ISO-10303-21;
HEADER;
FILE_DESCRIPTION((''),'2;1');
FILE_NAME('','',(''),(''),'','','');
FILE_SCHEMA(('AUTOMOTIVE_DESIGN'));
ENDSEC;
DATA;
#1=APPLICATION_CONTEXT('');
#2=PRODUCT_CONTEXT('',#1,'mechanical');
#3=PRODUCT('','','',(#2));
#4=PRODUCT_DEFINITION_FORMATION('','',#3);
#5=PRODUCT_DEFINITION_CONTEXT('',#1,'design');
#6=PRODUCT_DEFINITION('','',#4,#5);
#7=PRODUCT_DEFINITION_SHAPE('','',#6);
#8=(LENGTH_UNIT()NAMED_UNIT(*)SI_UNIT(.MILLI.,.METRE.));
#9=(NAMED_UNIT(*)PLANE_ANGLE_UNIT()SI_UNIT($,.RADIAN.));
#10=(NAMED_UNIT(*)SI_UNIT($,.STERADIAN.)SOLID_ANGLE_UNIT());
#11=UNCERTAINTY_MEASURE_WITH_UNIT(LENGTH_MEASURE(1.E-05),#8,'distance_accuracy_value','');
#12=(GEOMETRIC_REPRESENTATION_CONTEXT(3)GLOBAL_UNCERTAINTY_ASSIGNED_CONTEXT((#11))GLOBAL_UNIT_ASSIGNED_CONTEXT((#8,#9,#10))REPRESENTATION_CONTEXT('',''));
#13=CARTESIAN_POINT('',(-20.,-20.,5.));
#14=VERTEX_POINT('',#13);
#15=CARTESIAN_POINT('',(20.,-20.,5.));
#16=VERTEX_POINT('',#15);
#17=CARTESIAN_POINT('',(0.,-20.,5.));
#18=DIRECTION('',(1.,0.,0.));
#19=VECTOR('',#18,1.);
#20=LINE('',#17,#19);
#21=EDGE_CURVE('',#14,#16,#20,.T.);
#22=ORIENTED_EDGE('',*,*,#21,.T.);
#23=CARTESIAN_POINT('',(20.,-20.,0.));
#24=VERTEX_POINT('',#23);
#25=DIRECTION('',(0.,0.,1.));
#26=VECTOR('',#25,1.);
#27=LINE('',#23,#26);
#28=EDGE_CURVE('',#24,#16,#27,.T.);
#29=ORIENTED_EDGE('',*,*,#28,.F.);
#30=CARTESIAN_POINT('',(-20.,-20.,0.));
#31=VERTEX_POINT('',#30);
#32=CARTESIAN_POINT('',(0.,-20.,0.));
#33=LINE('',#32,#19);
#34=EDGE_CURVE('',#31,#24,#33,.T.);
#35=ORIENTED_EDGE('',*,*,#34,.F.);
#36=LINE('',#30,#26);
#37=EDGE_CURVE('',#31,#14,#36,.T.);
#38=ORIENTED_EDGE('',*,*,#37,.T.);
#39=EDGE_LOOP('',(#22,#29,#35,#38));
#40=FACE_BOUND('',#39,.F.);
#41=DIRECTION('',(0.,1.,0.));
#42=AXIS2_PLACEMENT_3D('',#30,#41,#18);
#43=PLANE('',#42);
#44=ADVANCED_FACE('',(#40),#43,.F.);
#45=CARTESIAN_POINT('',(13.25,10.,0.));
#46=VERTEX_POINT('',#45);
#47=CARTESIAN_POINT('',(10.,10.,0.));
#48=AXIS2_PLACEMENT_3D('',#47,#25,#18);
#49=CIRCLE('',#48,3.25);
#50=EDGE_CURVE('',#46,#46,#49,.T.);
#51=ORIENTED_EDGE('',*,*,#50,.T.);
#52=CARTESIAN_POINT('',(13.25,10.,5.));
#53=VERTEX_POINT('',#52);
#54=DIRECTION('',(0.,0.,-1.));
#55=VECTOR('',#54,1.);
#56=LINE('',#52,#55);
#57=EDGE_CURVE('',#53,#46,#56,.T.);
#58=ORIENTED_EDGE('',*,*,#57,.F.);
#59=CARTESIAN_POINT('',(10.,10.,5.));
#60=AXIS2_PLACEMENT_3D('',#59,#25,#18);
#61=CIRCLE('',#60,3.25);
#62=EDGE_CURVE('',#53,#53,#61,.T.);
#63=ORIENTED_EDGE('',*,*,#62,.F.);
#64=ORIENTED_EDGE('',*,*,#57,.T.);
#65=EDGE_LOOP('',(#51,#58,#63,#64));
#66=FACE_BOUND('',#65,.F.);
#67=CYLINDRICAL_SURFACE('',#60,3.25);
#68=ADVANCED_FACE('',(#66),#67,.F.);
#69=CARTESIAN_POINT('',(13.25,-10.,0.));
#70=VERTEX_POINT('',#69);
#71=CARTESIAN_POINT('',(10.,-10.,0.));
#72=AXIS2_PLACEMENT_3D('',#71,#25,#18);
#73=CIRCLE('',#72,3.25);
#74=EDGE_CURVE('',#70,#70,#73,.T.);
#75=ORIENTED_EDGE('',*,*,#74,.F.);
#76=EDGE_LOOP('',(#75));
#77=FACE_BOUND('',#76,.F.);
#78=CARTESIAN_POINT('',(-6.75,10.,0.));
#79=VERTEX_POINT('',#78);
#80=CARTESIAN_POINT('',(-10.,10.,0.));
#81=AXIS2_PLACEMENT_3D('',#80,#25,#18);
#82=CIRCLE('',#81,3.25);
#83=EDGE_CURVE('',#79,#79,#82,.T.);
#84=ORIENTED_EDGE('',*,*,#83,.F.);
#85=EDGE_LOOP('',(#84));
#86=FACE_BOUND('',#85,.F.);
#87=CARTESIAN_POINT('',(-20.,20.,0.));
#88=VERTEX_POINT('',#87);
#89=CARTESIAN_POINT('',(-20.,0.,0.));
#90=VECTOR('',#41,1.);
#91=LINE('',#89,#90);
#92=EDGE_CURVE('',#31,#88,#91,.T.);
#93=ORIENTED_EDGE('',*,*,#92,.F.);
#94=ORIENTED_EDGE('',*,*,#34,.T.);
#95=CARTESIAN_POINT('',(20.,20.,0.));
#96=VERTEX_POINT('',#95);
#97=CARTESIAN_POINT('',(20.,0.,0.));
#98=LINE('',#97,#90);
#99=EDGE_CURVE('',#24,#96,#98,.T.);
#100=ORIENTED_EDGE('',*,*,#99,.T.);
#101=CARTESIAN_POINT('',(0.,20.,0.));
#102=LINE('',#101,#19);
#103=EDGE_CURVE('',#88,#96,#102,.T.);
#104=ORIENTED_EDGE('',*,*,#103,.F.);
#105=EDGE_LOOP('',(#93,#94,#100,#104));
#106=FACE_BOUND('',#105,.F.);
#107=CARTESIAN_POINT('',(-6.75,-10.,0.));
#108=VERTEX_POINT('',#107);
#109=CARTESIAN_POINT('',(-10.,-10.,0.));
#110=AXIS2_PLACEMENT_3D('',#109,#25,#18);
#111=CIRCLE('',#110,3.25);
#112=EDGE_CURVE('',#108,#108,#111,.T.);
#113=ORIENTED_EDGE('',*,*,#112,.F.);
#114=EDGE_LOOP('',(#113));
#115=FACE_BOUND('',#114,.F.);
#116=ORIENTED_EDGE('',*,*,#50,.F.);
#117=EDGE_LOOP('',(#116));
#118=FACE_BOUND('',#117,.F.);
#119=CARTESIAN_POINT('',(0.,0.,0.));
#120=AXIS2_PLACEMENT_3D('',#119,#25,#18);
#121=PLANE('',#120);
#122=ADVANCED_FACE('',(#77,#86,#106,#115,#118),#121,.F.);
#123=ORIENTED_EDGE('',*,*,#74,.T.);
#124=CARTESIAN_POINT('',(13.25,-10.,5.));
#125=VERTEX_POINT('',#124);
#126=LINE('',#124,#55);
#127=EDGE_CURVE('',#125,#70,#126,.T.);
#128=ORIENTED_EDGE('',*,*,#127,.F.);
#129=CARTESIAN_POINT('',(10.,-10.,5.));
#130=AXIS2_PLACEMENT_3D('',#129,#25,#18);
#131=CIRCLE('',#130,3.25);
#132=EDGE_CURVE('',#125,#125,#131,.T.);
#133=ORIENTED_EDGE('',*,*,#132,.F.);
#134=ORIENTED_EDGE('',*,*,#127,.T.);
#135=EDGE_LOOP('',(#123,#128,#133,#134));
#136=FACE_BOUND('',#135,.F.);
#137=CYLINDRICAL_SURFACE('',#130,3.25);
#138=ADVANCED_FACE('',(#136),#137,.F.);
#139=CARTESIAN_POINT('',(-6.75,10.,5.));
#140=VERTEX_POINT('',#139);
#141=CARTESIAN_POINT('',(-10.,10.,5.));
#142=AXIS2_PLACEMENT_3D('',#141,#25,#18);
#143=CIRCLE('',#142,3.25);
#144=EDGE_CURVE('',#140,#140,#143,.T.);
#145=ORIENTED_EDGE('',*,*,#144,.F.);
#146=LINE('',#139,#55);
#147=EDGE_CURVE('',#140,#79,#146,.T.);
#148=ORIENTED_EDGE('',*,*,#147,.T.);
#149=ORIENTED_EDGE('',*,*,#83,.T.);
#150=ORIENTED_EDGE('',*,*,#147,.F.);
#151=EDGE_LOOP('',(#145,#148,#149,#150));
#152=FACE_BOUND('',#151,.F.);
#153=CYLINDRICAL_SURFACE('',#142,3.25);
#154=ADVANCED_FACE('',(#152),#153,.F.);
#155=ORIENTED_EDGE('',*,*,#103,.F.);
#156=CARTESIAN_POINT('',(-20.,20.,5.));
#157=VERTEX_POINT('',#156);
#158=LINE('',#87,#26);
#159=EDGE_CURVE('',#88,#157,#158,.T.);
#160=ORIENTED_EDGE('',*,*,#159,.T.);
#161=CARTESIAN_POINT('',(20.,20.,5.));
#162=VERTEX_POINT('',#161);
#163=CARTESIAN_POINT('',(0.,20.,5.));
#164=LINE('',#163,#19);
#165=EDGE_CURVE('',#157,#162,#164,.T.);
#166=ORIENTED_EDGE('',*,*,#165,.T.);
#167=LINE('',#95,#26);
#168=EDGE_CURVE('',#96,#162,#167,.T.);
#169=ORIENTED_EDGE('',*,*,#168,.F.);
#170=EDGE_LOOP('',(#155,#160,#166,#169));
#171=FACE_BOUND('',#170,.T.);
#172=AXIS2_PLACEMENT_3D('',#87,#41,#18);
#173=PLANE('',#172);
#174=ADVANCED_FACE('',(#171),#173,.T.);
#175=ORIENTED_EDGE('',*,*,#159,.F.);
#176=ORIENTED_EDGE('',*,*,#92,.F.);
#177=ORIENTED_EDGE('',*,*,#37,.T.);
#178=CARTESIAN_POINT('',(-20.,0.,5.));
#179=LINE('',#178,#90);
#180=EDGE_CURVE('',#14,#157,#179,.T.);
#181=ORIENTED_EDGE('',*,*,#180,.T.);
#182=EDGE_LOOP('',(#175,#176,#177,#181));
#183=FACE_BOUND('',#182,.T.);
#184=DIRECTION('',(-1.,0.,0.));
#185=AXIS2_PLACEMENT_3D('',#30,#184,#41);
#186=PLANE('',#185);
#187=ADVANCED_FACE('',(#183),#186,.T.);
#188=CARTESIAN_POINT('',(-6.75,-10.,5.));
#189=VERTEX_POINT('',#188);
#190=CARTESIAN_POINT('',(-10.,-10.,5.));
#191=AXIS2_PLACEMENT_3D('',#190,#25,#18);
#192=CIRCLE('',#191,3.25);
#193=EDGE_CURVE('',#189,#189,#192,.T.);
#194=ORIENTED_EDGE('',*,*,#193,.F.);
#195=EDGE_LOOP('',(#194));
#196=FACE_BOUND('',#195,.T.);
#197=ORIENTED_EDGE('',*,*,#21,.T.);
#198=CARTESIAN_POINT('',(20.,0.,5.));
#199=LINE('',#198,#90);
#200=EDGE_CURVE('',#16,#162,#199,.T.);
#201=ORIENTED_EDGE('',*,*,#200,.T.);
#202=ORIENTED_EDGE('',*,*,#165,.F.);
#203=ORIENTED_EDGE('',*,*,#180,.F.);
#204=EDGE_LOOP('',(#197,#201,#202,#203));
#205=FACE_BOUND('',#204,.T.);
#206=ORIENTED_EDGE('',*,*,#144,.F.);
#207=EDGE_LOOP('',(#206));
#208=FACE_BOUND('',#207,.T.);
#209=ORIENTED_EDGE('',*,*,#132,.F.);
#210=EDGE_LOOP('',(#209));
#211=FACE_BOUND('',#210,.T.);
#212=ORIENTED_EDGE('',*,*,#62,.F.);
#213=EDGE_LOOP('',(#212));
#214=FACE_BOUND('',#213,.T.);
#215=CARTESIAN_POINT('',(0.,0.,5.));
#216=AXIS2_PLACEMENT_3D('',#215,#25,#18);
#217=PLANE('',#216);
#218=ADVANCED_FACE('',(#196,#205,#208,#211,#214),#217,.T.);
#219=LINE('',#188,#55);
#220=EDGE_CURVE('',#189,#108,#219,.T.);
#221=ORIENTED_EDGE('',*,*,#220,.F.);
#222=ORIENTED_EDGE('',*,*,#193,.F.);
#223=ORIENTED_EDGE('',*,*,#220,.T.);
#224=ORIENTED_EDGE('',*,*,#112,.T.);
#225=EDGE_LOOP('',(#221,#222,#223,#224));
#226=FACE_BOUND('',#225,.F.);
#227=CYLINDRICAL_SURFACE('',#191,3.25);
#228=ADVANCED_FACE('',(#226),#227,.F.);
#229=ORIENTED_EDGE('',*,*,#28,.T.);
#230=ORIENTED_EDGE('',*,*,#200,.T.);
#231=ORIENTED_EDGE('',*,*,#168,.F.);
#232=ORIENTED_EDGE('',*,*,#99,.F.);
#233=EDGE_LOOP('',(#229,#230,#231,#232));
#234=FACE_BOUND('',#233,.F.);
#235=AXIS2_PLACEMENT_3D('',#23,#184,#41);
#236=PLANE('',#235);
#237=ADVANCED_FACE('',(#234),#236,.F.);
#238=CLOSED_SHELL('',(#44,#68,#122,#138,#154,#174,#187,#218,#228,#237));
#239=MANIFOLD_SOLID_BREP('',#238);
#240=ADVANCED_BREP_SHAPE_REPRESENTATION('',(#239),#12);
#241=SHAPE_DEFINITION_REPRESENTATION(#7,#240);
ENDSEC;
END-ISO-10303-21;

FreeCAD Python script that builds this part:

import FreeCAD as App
import Part
import Sketcher

V = App.Vector

doc = App.newDocument("Part")
params = doc.addObject("Spreadsheet::Sheet", "Params")
for row, (alias, value) in enumerate([
    ("sketch1_width", "40 mm"),
    ("pad1_length", "5 mm"),
    ("sketch2_diameter", "6.5 mm"),
    ("pocket1_length", "5 mm"),
], start=1):
    params.set(f"A{row}", alias)
    params.set(f"B{row}", "=" + value)
    params.setAlias(f"B{row}", alias)

body = doc.addObject("PartDesign::Body", "Body")

# Sketch on XY plane
sketch1 = body.newObject("Sketcher::SketchObject", "Sketch")
sketch1.AttachmentSupport = (doc.getObject("XY_Plane"), [""])
sketch1.MapMode = "FlatFace"
sketch1.addGeometry(Part.LineSegment(V(-20, 20, 0), V(-20, -20, 0)), False)
sketch1.addGeometry(Part.LineSegment(V(-20, -20, 0), V(20, -20, 0)), False)
sketch1.addGeometry(Part.LineSegment(V(20, -20, 0), V(20, 20, 0)), False)
sketch1.addGeometry(Part.LineSegment(V(20, 20, 0), V(-20, 20, 0)), False)
sketch1.addConstraint(Sketcher.Constraint("Coincident", 0, 2, 1, 1))
sketch1.addConstraint(Sketcher.Constraint("Coincident", 1, 2, 2, 1))
sketch1.addConstraint(Sketcher.Constraint("Coincident", 2, 2, 3, 1))
sketch1.addConstraint(Sketcher.Constraint("Coincident", 3, 2, 0, 1))
sketch1.addConstraint(Sketcher.Constraint("Vertical", 0))
sketch1.addConstraint(Sketcher.Constraint("Horizontal", 1))
sketch1.addConstraint(Sketcher.Constraint("Vertical", 2))
sketch1.addConstraint(Sketcher.Constraint("Horizontal", 3))
sketch1.addConstraint(Sketcher.Constraint("Symmetric", 0, 2, 2, 2, -1, 1))
sketch1.addConstraint(Sketcher.Constraint("Equal", 3, 0))
sketch1.addConstraint(Sketcher.Constraint("DistanceX", 1, 1, 1, 2, 40.0))
sketch1.setExpression("Constraints[10]", "Params.sketch1_width")
pad1 = body.newObject("PartDesign::Pad", "Pad")
pad1.Profile = sketch1
pad1.setExpression("Length", "Params.pad1_length")

# Sketch on XY plane
sketch2 = body.newObject("Sketcher::SketchObject", "Sketch001")
sketch2.AttachmentSupport = (doc.getObject("XY_Plane"), [""])
sketch2.MapMode = "FlatFace"
sketch2.AttachmentOffset = App.Placement(V(0, 0, 5), App.Rotation())
sketch2.addGeometry(Part.Circle(V(10, 10, 0), V(0, 0, 1), 3.2), False)
sketch2.addGeometry(Part.Circle(V(10, -10, 0), V(0, 0, 1), 3.2), False)
sketch2.addGeometry(Part.Circle(V(-10, -10, 0), V(0, 0, 1), 3.2), False)
sketch2.addGeometry(Part.Circle(V(-10, 10, 0), V(0, 0, 1), 3.2), False)
sketch2.addConstraint(Sketcher.Constraint("Equal", 0, 1))
sketch2.addConstraint(Sketcher.Constraint("Equal", 1, 2))
sketch2.addConstraint(Sketcher.Constraint("Equal", 2, 3))
sketch2.addConstraint(Sketcher.Constraint("Symmetric", 0, 3, 2, 3, -1, 1))
sketch2.addConstraint(Sketcher.Constraint("Symmetric", 1, 3, 3, 3, -1, 1))
sketch2.addConstraint(Sketcher.Constraint("Symmetric", 1, 3, 2, 3, -2))
sketch2.addConstraint(Sketcher.Constraint("Diameter", 0, 6.5))
sketch2.addConstraint(Sketcher.Constraint("DistanceX", -1, 1, 0, 3, 10.0))
sketch2.addConstraint(Sketcher.Constraint("DistanceY", -1, 1, 0, 3, 10.0))
sketch2.setExpression("Constraints[6]", "Params.sketch2_diameter")
pocket1 = body.newObject("PartDesign::Pocket", "Pocket")
pocket1.Profile = sketch2
pocket1.setExpression("Length", "Params.pocket1_length")

doc.recompute()
